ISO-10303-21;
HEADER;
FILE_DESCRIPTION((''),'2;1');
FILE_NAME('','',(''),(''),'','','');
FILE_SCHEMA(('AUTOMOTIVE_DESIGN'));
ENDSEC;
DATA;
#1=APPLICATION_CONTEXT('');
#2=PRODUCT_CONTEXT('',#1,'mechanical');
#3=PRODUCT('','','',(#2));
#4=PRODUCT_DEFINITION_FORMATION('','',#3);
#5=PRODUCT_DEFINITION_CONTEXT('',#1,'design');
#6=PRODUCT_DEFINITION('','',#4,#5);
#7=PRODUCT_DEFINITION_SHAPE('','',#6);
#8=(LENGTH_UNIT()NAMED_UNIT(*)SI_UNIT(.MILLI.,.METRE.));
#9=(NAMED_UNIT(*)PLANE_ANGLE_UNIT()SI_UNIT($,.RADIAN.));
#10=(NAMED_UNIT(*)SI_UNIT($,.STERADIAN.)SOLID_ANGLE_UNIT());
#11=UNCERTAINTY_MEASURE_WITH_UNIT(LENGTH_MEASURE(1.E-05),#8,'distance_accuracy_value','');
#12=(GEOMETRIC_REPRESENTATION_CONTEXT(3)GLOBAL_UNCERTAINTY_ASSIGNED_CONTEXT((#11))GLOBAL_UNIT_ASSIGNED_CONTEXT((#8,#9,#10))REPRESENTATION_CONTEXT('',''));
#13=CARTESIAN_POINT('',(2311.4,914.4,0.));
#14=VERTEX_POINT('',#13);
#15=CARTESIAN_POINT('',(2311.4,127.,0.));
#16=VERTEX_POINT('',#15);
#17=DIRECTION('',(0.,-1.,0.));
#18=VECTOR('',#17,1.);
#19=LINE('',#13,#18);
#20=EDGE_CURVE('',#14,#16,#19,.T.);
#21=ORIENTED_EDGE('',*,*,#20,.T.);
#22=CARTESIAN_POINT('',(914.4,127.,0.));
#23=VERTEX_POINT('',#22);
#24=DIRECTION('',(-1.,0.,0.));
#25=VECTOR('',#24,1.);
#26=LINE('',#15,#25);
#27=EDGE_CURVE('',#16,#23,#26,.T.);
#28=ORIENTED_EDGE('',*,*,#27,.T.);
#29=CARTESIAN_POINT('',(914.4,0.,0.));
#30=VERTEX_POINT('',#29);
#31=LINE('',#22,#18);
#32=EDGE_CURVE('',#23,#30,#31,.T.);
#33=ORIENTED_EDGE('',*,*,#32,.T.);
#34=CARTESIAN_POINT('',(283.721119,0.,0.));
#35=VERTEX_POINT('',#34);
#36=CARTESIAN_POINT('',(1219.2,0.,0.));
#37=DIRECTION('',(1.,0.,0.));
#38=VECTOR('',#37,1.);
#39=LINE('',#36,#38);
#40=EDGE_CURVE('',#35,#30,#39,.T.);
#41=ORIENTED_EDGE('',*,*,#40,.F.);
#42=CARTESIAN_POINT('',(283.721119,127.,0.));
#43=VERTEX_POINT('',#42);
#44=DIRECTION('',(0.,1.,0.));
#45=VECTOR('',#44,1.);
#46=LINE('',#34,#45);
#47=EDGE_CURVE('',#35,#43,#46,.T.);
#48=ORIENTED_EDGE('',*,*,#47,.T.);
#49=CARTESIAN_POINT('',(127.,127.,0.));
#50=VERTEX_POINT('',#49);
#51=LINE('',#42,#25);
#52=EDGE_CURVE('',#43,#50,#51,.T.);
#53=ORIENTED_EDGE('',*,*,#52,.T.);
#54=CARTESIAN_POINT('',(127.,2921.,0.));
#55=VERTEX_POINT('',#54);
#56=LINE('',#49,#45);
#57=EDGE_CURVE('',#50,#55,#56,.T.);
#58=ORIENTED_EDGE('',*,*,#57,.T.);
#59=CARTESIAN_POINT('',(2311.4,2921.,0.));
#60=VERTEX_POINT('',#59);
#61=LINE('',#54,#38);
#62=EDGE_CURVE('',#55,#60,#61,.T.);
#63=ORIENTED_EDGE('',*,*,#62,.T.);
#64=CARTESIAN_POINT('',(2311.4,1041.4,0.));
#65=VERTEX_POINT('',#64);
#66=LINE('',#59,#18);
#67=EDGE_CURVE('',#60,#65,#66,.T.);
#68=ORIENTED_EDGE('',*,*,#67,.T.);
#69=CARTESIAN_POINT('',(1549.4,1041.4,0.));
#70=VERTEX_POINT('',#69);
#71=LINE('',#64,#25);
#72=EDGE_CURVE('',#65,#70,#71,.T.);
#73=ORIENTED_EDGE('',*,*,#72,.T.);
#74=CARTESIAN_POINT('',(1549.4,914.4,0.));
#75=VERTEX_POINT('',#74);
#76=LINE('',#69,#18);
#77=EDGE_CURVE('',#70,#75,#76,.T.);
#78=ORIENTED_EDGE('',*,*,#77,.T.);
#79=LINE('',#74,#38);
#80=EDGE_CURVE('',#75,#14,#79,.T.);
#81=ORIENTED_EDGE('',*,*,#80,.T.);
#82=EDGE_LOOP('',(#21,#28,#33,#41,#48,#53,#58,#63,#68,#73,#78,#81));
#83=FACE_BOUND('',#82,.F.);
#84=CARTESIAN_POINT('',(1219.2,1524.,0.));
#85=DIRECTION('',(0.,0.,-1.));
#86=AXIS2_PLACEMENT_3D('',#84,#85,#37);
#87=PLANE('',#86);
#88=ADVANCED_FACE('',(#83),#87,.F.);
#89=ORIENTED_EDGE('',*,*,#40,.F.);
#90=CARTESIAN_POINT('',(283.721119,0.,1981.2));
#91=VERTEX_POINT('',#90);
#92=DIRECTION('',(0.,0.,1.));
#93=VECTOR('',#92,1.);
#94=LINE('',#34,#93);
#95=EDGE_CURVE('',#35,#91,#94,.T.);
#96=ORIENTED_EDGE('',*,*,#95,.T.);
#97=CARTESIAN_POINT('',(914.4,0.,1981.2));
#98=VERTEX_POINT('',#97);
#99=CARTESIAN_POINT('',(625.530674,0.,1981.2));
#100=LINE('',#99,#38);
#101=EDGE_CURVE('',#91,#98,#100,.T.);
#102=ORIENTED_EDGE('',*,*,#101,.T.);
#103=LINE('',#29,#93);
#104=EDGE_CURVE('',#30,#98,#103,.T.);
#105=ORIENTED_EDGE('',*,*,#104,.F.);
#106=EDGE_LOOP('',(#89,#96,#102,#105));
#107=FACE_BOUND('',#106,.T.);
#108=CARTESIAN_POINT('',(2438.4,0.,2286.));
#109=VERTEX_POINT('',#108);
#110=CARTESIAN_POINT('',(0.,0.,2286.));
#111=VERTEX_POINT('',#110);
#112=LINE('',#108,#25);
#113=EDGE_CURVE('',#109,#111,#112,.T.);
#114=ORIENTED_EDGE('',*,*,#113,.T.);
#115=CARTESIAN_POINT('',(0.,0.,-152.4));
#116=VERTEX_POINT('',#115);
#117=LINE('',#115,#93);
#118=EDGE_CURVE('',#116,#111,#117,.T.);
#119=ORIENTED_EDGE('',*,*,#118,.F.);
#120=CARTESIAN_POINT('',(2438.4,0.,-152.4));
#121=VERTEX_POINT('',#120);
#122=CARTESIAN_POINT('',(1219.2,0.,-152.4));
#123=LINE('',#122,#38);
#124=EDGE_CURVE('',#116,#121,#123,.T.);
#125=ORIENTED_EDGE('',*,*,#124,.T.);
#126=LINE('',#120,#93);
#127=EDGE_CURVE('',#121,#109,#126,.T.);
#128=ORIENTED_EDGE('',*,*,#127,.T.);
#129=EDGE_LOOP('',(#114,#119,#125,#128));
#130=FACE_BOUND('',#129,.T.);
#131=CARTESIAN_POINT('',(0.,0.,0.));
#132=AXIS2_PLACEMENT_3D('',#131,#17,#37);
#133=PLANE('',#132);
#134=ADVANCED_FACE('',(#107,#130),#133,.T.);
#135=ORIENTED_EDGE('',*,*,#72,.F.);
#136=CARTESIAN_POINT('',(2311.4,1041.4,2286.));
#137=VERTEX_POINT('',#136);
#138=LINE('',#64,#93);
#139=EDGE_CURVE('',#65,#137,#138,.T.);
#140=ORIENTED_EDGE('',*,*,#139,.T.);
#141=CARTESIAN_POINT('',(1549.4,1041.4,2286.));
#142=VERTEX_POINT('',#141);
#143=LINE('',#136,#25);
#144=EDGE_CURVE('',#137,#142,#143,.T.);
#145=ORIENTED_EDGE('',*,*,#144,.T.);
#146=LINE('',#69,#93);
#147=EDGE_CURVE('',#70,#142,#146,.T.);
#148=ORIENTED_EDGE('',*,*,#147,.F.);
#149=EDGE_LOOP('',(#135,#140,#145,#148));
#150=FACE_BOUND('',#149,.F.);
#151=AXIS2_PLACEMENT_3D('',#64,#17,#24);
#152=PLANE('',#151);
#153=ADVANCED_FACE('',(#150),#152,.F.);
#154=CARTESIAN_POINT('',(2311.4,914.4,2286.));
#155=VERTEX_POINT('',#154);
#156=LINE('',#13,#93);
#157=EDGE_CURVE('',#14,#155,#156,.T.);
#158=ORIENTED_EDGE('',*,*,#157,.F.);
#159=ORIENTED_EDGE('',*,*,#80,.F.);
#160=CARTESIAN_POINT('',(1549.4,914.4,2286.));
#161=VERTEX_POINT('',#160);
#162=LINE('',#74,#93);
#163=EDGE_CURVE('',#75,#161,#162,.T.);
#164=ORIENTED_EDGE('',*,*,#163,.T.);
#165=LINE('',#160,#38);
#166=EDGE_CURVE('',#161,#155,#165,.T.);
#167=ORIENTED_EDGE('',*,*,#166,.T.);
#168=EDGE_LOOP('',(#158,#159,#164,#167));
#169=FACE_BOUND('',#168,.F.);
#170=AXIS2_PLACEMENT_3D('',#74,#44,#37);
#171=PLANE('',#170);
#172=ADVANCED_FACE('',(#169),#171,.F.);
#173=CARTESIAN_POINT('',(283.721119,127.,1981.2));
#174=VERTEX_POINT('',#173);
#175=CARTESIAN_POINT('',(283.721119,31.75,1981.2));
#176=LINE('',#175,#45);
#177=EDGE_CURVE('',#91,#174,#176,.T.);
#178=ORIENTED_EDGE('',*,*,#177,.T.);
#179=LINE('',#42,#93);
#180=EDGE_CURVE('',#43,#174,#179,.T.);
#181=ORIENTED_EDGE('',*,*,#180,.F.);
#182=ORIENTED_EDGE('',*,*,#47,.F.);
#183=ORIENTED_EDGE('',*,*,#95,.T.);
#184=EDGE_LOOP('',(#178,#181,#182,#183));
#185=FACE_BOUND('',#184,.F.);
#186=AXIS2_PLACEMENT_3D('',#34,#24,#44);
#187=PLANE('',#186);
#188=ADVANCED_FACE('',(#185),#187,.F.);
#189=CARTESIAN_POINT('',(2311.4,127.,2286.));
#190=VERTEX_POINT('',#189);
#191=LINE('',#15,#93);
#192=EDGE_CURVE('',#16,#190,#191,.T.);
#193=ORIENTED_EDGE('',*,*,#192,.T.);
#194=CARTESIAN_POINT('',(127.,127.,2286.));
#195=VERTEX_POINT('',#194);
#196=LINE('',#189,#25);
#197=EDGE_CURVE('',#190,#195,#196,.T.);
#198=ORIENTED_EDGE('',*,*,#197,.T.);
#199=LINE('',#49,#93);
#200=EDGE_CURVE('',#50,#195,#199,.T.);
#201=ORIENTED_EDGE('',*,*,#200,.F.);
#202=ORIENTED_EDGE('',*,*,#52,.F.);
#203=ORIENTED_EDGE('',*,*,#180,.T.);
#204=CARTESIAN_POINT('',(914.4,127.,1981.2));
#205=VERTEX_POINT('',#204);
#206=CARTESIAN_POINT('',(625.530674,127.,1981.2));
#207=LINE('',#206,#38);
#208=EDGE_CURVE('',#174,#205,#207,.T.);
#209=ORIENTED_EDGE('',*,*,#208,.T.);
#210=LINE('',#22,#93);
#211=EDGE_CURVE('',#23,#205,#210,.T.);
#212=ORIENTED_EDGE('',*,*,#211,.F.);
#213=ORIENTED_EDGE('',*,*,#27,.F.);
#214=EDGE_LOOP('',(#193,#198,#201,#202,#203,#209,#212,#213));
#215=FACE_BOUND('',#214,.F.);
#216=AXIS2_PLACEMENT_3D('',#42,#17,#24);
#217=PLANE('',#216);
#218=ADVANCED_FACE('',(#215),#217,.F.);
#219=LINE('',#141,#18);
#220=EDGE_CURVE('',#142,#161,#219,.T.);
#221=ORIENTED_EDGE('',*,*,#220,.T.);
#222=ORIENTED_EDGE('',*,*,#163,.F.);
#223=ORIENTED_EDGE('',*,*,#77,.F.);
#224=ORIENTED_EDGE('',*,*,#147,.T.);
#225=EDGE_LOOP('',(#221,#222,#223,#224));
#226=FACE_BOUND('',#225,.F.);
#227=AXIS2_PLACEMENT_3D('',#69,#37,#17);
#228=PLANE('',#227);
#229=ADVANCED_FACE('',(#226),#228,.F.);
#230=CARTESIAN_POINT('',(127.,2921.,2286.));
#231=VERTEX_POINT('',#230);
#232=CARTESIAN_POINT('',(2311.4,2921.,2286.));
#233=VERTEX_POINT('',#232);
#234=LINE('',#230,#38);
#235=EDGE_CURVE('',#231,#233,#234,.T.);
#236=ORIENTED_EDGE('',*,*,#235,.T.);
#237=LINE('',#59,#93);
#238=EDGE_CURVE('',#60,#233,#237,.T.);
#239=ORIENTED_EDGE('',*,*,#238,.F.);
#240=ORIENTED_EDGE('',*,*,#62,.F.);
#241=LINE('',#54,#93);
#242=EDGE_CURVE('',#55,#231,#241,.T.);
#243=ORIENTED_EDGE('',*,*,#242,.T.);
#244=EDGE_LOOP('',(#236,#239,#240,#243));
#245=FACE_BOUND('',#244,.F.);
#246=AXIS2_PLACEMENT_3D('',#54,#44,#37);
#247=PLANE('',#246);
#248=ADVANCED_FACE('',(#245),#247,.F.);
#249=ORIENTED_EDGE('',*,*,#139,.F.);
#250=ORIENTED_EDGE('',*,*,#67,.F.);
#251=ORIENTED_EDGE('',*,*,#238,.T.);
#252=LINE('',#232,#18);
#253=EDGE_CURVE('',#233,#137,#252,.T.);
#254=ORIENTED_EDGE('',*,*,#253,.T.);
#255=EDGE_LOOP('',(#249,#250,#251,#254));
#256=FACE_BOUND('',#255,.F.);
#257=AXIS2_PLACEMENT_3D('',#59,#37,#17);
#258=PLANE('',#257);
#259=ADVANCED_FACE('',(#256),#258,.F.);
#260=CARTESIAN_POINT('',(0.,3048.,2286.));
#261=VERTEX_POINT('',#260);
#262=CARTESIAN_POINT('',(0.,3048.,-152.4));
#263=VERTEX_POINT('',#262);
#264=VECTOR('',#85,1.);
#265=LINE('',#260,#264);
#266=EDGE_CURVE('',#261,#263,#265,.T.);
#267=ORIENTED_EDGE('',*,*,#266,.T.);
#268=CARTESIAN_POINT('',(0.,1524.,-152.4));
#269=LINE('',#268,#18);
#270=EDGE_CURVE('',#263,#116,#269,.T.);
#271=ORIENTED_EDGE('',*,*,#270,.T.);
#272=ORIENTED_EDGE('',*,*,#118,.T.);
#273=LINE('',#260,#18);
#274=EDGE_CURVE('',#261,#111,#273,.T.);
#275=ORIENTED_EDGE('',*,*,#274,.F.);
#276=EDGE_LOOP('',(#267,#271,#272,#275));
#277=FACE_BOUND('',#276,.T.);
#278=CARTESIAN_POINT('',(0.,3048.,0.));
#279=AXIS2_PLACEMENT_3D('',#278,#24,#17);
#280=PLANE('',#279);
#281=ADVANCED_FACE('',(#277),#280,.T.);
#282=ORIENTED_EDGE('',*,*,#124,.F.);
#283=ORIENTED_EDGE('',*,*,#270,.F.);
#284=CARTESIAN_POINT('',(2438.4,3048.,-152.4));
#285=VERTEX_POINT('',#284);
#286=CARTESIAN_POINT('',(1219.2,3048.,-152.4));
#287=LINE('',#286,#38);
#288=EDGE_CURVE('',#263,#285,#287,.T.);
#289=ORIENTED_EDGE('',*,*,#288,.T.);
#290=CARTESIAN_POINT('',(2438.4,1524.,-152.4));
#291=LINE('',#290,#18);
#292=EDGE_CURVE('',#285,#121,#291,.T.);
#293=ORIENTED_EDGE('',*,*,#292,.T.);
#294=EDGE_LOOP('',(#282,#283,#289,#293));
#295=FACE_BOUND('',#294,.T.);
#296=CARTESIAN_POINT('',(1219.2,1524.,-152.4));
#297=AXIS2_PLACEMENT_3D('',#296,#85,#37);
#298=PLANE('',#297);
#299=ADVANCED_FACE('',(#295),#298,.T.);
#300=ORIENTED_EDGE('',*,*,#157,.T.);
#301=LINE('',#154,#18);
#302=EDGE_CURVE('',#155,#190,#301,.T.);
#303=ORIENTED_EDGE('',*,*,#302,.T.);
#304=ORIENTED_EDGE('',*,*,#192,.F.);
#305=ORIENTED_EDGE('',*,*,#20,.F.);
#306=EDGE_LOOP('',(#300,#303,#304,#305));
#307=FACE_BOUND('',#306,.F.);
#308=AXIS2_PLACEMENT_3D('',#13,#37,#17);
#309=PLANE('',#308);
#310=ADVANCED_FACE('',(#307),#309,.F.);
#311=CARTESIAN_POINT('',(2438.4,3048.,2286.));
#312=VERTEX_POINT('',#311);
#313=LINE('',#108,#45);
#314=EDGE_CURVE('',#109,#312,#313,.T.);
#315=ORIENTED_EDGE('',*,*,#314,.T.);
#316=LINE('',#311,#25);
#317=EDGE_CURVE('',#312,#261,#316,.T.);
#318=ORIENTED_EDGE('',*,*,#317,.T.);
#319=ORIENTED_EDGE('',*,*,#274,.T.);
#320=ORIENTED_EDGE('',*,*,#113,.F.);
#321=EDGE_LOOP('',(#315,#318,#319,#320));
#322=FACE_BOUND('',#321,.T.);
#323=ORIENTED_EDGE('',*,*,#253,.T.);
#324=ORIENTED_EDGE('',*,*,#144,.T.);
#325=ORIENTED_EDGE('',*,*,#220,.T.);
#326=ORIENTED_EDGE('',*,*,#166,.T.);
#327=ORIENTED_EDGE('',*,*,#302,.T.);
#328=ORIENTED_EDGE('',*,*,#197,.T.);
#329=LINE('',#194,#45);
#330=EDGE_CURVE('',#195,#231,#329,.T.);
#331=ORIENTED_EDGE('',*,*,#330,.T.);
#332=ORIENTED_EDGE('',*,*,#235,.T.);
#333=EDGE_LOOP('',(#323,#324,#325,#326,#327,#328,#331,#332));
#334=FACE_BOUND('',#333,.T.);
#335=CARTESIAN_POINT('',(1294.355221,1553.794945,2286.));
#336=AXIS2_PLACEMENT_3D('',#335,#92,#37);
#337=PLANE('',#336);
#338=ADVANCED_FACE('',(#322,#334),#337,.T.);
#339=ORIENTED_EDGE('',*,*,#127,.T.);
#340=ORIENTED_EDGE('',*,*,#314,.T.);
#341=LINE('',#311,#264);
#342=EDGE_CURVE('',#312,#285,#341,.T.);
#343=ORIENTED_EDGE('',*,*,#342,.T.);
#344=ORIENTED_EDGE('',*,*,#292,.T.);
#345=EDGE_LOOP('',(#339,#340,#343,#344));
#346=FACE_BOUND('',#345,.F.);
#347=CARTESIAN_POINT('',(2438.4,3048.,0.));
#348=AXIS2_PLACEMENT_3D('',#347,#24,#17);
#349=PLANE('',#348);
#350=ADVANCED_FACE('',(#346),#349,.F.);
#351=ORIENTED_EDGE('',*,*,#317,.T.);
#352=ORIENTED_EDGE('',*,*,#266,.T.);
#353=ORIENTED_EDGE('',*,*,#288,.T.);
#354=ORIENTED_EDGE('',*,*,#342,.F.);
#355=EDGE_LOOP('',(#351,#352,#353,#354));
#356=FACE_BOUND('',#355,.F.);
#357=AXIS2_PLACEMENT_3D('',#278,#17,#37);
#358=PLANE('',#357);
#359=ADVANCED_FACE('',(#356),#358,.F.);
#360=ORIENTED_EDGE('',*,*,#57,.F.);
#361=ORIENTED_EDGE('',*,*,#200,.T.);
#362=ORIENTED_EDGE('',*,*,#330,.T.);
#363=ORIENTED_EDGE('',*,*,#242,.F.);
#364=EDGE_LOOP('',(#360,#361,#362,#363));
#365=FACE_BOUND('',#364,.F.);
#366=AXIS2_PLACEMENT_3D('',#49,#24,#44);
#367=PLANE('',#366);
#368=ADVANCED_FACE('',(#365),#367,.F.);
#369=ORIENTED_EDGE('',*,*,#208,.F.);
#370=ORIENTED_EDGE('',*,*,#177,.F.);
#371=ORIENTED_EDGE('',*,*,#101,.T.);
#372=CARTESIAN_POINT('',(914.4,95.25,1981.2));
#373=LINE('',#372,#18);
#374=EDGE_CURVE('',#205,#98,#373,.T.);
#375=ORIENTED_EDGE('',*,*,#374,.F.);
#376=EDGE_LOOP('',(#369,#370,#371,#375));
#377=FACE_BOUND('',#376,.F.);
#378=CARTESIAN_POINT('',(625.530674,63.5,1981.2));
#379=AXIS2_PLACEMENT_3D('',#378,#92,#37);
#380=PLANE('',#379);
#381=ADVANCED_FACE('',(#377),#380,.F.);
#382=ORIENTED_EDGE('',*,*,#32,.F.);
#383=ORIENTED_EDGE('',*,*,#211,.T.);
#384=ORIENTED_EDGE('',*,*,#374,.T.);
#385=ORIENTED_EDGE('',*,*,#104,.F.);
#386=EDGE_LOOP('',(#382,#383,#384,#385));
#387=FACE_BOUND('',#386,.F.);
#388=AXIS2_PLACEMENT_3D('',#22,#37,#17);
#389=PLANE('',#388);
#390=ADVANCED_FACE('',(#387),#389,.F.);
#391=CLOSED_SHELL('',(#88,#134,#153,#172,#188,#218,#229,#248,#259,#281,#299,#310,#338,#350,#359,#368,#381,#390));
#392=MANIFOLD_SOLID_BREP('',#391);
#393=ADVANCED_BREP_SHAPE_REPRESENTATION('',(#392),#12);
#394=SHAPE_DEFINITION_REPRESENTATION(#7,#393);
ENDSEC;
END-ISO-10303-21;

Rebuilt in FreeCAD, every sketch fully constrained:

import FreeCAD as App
import Part
import Sketcher
from FreeCAD import Vector
Q = App.Units.Quantity

doc = App.newDocument("Part")
params = doc.addObject("Spreadsheet::Sheet", "Params")
for row, (alias, value) in enumerate([
    ("sketch1_width", "86 in"),
    ("sketch1_width2", "30 in"),
    ("sketch1_width3", "55 in"),
    ("sketch1_width4", "60 in"),
    ("sketch1_width5", "96 in"),
    ("pad1_length", "90 in"),
    ("sketch2_width", "96 in"),
    ("sketch2_height", "120 in"),
    ("pad2_length", "6 in"),
    ("sketch3_height", "5 in"),
    ("pad3_length", "12 in"),
], start=1):
    params.set(f"A{row}", alias)
    params.set(f"B{row}", "=" + value)
    params.setAlias(f"B{row}", alias)

body = doc.addObject("PartDesign::Body", "Body")

# Sketch on XY plane
sketch1 = doc.addObject("Sketcher::SketchObject", "Sketch")
body.addObject(sketch1)
sketch1.AttachmentSupport = (doc.XY_Plane, [""])
sketch1.MapMode = "FlatFace"
sketch1.addGeometry([
    Part.LineSegment(Vector(0, 3048, 0), Vector(0, 0, 0)),  # 0
    Part.LineSegment(Vector(0, 0, 0), Vector(284, 0, 0)),  # 1
    Part.LineSegment(Vector(284, 0, 0), Vector(284, 127, 0)),  # 2
    Part.LineSegment(Vector(284, 127, 0), Vector(127, 127, 0)),  # 3
    Part.LineSegment(Vector(127, 127, 0), Vector(127, 2921, 0)),  # 4
    Part.LineSegment(Vector(127, 2921, 0), Vector(2311, 2921, 0)),  # 5
    Part.LineSegment(Vector(2311, 2921, 0), Vector(2311, 1041, 0)),  # 6
    Part.LineSegment(Vector(2311, 1041, 0), Vector(1549, 1041, 0)),  # 7
    Part.LineSegment(Vector(1549, 1041, 0), Vector(1549, 914, 0)),  # 8
    Part.LineSegment(Vector(1549, 914, 0), Vector(2311, 914, 0)),  # 9
    Part.LineSegment(Vector(2311, 914, 0), Vector(2311, 127, 0)),  # 10
    Part.LineSegment(Vector(2311, 127, 0), Vector(914, 127, 0)),  # 11
    Part.LineSegment(Vector(914, 127, 0), Vector(914, 0, 0)),  # 12
    Part.LineSegment(Vector(914, 0, 0), Vector(2438, 0, 0)),  # 13
    Part.LineSegment(Vector(2438, 0, 0), Vector(2438, 3048, 0)),  # 14
    Part.LineSegment(Vector(2438, 3048, 0), Vector(0, 3048, 0)),  # 15
], False)
sketch1.addConstraint([
    Sketcher.Constraint("Coincident", 0, 2, 1, 1),
    Sketcher.Constraint("Coincident", 1, 2, 2, 1),
    Sketcher.Constraint("Coincident", 2, 2, 3, 1),
    Sketcher.Constraint("Coincident", 3, 2, 4, 1),
    Sketcher.Constraint("Coincident", 4, 2, 5, 1),
    Sketcher.Constraint("Coincident", 5, 2, 6, 1),
    Sketcher.Constraint("Coincident", 6, 2, 7, 1),
    Sketcher.Constraint("Coincident", 7, 2, 8, 1),
    Sketcher.Constraint("Coincident", 8, 2, 9, 1),
    Sketcher.Constraint("Coincident", 9, 2, 10, 1),
    Sketcher.Constraint("Coincident", 10, 2, 11, 1),
    Sketcher.Constraint("Coincident", 11, 2, 12, 1),
    Sketcher.Constraint("Coincident", 12, 2, 13, 1),
    Sketcher.Constraint("Coincident", 13, 2, 14, 1),
    Sketcher.Constraint("Coincident", 14, 2, 15, 1),
    Sketcher.Constraint("Coincident", 15, 2, 0, 1),
    Sketcher.Constraint("Vertical", 0),
    Sketcher.Constraint("Horizontal", 1),
    Sketcher.Constraint("Vertical", 2),
    Sketcher.Constraint("Horizontal", 3),
    Sketcher.Constraint("Vertical", 4),
    Sketcher.Constraint("Horizontal", 5),
    Sketcher.Constraint("Vertical", 6),
    Sketcher.Constraint("Horizontal", 7),
    Sketcher.Constraint("Vertical", 8),
    Sketcher.Constraint("Horizontal", 9),
    Sketcher.Constraint("Vertical", 10),
    Sketcher.Constraint("Horizontal", 11),
    Sketcher.Constraint("Vertical", 12),
    Sketcher.Constraint("Horizontal", 13),
    Sketcher.Constraint("Vertical", 14),
    Sketcher.Constraint("Horizontal", 15),
    Sketcher.Constraint("Coincident", 0, 2, -1, 1),
    Sketcher.Constraint("PointOnObject", 12, 2, -1),
    Sketcher.Constraint("Horizontal", 3, 2, 10, 2),
    Sketcher.Constraint("Vertical", 6, 2, 9, 2),
    Sketcher.Constraint("Equal", 2, 8),
    Sketcher.Constraint("DistanceX", 5, 1, 5, 2, Q("86 in")),
    Sketcher.Constraint("DistanceX", 7, 2, 7, 1, Q("30 in")),
    Sketcher.Constraint("DistanceX", 11, 2, 11, 1, Q("55 in")),
    Sketcher.Constraint("DistanceX", 13, 1, 13, 2, Q("60 in")),
    Sketcher.Constraint("DistanceX", 15, 2, 15, 1, Q("96 in")),
    Sketcher.Constraint("DistanceY", 0, 2, 0, 1, Q("120 in")),
    Sketcher.Constraint("DistanceY", 2, 1, 2, 2, Q("5 in")),
    Sketcher.Constraint("DistanceY", 4, 1, 4, 2, Q("110 in")),
    Sketcher.Constraint("DistanceY", 6, 2, 6, 1, Q("74 in")),
    Sketcher.Constraint("DistanceX", 1, 1, 1, 2, 283.721119),
])
sketch1.setExpression("Constraints[37]", "Params.sketch1_width")
sketch1.setExpression("Constraints[38]", "Params.sketch1_width2")
sketch1.setExpression("Constraints[39]", "Params.sketch1_width3")
sketch1.setExpression("Constraints[40]", "Params.sketch1_width4")
sketch1.setExpression("Constraints[41]", "Params.sketch1_width5")
pad1 = doc.addObject("PartDesign::Pad", "Pad")
body.addObject(pad1)
pad1.Profile = sketch1
pad1.setExpression("Length", "Params.pad1_length")

# Sketch on XY plane
sketch2 = doc.addObject("Sketcher::SketchObject", "Sketch001")
body.addObject(sketch2)
sketch2.AttachmentSupport = (doc.XY_Plane, [""])
sketch2.MapMode = "FlatFace"
sketch2.addGeometry([
    Part.LineSegment(Vector(0, 0, 0), Vector(0, 3048, 0)),
    Part.LineSegment(Vector(0, 3048, 0), Vector(2438, 3048, 0)),
    Part.LineSegment(Vector(2438, 3048, 0), Vector(2438, 0, 0)),
    Part.LineSegment(Vector(2438, 0, 0), Vector(0, 0, 0)),
], False)
sketch2.addConstraint([
    Sketcher.Constraint("Coincident", 0, 2, 1, 1),
    Sketcher.Constraint("Coincident", 1, 2, 2, 1),
    Sketcher.Constraint("Coincident", 2, 2, 3, 1),
    Sketcher.Constraint("Coincident", 3, 2, 0, 1),
    Sketcher.Constraint("Vertical", 0),
    Sketcher.Constraint("Horizontal", 1),
    Sketcher.Constraint("Vertical", 2),
    Sketcher.Constraint("Horizontal", 3),
    Sketcher.Constraint("Coincident", 3, 2, -1, 1),
    Sketcher.Constraint("DistanceX", 1, 1, 1, 2, Q("96 in")),
    Sketcher.Constraint("DistanceY", 0, 1, 0, 2, Q("120 in")),
])
sketch2.setExpression("Constraints[9]", "Params.sketch2_width")
sketch2.setExpression("Constraints[10]", "Params.sketch2_height")
pad2 = doc.addObject("PartDesign::Pad", "Pad001")
body.addObject(pad2)
pad2.Profile = sketch2
pad2.setExpression("Length", "Params.pad2_length")
pad2.Reversed = True

# Sketch on XY plane
sketch3 = doc.addObject("Sketcher::SketchObject", "Sketch002")
body.addObject(sketch3)
sketch3.AttachmentSupport = (doc.XY_Plane, [""])
sketch3.MapMode = "FlatFace"
sketch3.AttachmentOffset = App.Placement(Vector(0, 0, 90 * 25.4), App.Rotation())
sketch3.addGeometry([
    Part.LineSegment(Vector(205, 127, 0), Vector(205, 0, 0)),
    Part.LineSegment(Vector(205, 0, 0), Vector(1046, 0, 0)),
    Part.LineSegment(Vector(1046, 0, 0), Vector(1046, 127, 0)),
    Part.LineSegment(Vector(1046, 127, 0), Vector(205, 127, 0)),
], False)
sketch3.addConstraint([
    Sketcher.Constraint("Coincident", 0, 2, 1, 1),
    Sketcher.Constraint("Coincident", 1, 2, 2, 1),
    Sketcher.Constraint("Coincident", 2, 2, 3, 1),
    Sketcher.Constraint("Coincident", 3, 2, 0, 1),
    Sketcher.Constraint("Vertical", 0),
    Sketcher.Constraint("Horizontal", 1),
    Sketcher.Constraint("Vertical", 2),
    Sketcher.Constraint("Horizontal", 3),
    Sketcher.Constraint("PointOnObject", 0, 2, -1),
    Sketcher.Constraint("DistanceY", 0, 2, 0, 1, Q("5 in")),
    Sketcher.Constraint("DistanceX", 1, 1, 1, 2, 840.340228),
    Sketcher.Constraint("DistanceX", -1, 1, 0, 2, 205.36056),
])
sketch3.setExpression("Constraints[9]", "Params.sketch3_height")
pad3 = doc.addObject("PartDesign::Pad", "Pad002")
body.addObject(pad3)
pad3.Profile = sketch3
pad3.setExpression("Length", "Params.pad3_length")
pad3.Reversed = True

doc.recompute()
